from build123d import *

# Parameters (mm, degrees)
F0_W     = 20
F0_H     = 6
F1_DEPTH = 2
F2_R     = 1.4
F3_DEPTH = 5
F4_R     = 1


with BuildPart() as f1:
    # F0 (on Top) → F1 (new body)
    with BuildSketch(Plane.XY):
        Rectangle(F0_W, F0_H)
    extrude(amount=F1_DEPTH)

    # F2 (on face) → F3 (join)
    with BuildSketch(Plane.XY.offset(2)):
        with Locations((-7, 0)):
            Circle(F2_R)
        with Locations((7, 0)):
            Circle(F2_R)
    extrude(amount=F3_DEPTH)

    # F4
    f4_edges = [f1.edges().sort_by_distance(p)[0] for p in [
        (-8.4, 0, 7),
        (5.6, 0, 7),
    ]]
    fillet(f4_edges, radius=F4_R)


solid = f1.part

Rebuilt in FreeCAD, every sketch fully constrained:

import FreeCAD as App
import Part
import Sketcher


def edges_at(feature, points):
    """Names of the edges that pass closest to the given points."""
    edges = feature.Shape.Edges
    near = lambda p: min(range(len(edges)), key=lambda i: edges[i].distToShape(Part.Vertex(*p))[0])
    return sorted({f"Edge{near(p) + 1}" for p in points})

doc = App.newDocument("Part")
body = doc.addObject("PartDesign::Body", "Body")

sketch1 = doc.addObject("Sketcher::SketchObject", "Sketch")
body.addObject(sketch1)
sketch1.AttachmentSupport = (doc.XY_Plane, [""])
sketch1.MapMode = "FlatFace"
sketch1.addGeometry(Part.LineSegment(App.Vector(-10, 3, 0), App.Vector(-10, -3, 0)), False)
sketch1.addGeometry(Part.LineSegment(App.Vector(-10, -3, 0), App.Vector(10, -3, 0)), False)
sketch1.addGeometry(Part.LineSegment(App.Vector(10, -3, 0), App.Vector(10, 3, 0)), False)
sketch1.addGeometry(Part.LineSegment(App.Vector(10, 3, 0), App.Vector(-10, 3, 0)), False)
sketch1.addConstraint(Sketcher.Constraint("Coincident", 0, 2, 1, 1))
sketch1.addConstraint(Sketcher.Constraint("Coincident", 1, 2, 2, 1))
sketch1.addConstraint(Sketcher.Constraint("Coincident", 2, 2, 3, 1))
sketch1.addConstraint(Sketcher.Constraint("Coincident", 3, 2, 0, 1))
sketch1.addConstraint(Sketcher.Constraint("Vertical", 0))
sketch1.addConstraint(Sketcher.Constraint("Horizontal", 1))
sketch1.addConstraint(Sketcher.Constraint("Vertical", 2))
sketch1.addConstraint(Sketcher.Constraint("Horizontal", 3))
sketch1.addConstraint(Sketcher.Constraint("Symmetric", 0, 2, 2, 2, -1, 1))
sketch1.addConstraint(Sketcher.Constraint("DistanceX", 1, 1, 1, 2, 20.0))
sketch1.addConstraint(Sketcher.Constraint("DistanceY", 0, 2, 0, 1, 6.0))
pad1 = doc.addObject("PartDesign::Pad", "Pad")
body.addObject(pad1)
pad1.Profile = sketch1
pad1.Length = 2

sketch2 = doc.addObject("Sketcher::SketchObject", "Sketch001")
body.addObject(sketch2)
sketch2.AttachmentSupport = (doc.XY_Plane, [""])
sketch2.MapMode = "FlatFace"
sketch2.AttachmentOffset = App.Placement(App.Vector(0, 0, 2), App.Rotation())
sketch2.addGeometry(Part.Circle(App.Vector(-7, 0, 0), App.Vector(0, 0, 1), 1.4), False)
sketch2.addGeometry(Part.Circle(App.Vector(7, 0, 0), App.Vector(0, 0, 1), 1.4), False)
sketch2.addConstraint(Sketcher.Constraint("Equal", 0, 1))
sketch2.addConstraint(Sketcher.Constraint("Symmetric", 0, 3, 1, 3, -1, 1))
sketch2.addConstraint(Sketcher.Constraint("PointOnObject", 0, 3, -1))
sketch2.addConstraint(Sketcher.Constraint("Diameter", 0, 2.8))
sketch2.addConstraint(Sketcher.Constraint("DistanceX", 0, 3, -1, 1, 7.0))
pad2 = doc.addObject("PartDesign::Pad", "Pad001")
body.addObject(pad2)
pad2.Profile = sketch2
pad2.Length = 5
doc.recompute()

fillet = doc.addObject("PartDesign::Fillet", "Fillet")
body.addObject(fillet)
fillet.Base = (pad2, edges_at(pad2, [(-8.4, 0, 7), (5.6, 0, 7)]))
fillet.Radius = 1

doc.recompute()
